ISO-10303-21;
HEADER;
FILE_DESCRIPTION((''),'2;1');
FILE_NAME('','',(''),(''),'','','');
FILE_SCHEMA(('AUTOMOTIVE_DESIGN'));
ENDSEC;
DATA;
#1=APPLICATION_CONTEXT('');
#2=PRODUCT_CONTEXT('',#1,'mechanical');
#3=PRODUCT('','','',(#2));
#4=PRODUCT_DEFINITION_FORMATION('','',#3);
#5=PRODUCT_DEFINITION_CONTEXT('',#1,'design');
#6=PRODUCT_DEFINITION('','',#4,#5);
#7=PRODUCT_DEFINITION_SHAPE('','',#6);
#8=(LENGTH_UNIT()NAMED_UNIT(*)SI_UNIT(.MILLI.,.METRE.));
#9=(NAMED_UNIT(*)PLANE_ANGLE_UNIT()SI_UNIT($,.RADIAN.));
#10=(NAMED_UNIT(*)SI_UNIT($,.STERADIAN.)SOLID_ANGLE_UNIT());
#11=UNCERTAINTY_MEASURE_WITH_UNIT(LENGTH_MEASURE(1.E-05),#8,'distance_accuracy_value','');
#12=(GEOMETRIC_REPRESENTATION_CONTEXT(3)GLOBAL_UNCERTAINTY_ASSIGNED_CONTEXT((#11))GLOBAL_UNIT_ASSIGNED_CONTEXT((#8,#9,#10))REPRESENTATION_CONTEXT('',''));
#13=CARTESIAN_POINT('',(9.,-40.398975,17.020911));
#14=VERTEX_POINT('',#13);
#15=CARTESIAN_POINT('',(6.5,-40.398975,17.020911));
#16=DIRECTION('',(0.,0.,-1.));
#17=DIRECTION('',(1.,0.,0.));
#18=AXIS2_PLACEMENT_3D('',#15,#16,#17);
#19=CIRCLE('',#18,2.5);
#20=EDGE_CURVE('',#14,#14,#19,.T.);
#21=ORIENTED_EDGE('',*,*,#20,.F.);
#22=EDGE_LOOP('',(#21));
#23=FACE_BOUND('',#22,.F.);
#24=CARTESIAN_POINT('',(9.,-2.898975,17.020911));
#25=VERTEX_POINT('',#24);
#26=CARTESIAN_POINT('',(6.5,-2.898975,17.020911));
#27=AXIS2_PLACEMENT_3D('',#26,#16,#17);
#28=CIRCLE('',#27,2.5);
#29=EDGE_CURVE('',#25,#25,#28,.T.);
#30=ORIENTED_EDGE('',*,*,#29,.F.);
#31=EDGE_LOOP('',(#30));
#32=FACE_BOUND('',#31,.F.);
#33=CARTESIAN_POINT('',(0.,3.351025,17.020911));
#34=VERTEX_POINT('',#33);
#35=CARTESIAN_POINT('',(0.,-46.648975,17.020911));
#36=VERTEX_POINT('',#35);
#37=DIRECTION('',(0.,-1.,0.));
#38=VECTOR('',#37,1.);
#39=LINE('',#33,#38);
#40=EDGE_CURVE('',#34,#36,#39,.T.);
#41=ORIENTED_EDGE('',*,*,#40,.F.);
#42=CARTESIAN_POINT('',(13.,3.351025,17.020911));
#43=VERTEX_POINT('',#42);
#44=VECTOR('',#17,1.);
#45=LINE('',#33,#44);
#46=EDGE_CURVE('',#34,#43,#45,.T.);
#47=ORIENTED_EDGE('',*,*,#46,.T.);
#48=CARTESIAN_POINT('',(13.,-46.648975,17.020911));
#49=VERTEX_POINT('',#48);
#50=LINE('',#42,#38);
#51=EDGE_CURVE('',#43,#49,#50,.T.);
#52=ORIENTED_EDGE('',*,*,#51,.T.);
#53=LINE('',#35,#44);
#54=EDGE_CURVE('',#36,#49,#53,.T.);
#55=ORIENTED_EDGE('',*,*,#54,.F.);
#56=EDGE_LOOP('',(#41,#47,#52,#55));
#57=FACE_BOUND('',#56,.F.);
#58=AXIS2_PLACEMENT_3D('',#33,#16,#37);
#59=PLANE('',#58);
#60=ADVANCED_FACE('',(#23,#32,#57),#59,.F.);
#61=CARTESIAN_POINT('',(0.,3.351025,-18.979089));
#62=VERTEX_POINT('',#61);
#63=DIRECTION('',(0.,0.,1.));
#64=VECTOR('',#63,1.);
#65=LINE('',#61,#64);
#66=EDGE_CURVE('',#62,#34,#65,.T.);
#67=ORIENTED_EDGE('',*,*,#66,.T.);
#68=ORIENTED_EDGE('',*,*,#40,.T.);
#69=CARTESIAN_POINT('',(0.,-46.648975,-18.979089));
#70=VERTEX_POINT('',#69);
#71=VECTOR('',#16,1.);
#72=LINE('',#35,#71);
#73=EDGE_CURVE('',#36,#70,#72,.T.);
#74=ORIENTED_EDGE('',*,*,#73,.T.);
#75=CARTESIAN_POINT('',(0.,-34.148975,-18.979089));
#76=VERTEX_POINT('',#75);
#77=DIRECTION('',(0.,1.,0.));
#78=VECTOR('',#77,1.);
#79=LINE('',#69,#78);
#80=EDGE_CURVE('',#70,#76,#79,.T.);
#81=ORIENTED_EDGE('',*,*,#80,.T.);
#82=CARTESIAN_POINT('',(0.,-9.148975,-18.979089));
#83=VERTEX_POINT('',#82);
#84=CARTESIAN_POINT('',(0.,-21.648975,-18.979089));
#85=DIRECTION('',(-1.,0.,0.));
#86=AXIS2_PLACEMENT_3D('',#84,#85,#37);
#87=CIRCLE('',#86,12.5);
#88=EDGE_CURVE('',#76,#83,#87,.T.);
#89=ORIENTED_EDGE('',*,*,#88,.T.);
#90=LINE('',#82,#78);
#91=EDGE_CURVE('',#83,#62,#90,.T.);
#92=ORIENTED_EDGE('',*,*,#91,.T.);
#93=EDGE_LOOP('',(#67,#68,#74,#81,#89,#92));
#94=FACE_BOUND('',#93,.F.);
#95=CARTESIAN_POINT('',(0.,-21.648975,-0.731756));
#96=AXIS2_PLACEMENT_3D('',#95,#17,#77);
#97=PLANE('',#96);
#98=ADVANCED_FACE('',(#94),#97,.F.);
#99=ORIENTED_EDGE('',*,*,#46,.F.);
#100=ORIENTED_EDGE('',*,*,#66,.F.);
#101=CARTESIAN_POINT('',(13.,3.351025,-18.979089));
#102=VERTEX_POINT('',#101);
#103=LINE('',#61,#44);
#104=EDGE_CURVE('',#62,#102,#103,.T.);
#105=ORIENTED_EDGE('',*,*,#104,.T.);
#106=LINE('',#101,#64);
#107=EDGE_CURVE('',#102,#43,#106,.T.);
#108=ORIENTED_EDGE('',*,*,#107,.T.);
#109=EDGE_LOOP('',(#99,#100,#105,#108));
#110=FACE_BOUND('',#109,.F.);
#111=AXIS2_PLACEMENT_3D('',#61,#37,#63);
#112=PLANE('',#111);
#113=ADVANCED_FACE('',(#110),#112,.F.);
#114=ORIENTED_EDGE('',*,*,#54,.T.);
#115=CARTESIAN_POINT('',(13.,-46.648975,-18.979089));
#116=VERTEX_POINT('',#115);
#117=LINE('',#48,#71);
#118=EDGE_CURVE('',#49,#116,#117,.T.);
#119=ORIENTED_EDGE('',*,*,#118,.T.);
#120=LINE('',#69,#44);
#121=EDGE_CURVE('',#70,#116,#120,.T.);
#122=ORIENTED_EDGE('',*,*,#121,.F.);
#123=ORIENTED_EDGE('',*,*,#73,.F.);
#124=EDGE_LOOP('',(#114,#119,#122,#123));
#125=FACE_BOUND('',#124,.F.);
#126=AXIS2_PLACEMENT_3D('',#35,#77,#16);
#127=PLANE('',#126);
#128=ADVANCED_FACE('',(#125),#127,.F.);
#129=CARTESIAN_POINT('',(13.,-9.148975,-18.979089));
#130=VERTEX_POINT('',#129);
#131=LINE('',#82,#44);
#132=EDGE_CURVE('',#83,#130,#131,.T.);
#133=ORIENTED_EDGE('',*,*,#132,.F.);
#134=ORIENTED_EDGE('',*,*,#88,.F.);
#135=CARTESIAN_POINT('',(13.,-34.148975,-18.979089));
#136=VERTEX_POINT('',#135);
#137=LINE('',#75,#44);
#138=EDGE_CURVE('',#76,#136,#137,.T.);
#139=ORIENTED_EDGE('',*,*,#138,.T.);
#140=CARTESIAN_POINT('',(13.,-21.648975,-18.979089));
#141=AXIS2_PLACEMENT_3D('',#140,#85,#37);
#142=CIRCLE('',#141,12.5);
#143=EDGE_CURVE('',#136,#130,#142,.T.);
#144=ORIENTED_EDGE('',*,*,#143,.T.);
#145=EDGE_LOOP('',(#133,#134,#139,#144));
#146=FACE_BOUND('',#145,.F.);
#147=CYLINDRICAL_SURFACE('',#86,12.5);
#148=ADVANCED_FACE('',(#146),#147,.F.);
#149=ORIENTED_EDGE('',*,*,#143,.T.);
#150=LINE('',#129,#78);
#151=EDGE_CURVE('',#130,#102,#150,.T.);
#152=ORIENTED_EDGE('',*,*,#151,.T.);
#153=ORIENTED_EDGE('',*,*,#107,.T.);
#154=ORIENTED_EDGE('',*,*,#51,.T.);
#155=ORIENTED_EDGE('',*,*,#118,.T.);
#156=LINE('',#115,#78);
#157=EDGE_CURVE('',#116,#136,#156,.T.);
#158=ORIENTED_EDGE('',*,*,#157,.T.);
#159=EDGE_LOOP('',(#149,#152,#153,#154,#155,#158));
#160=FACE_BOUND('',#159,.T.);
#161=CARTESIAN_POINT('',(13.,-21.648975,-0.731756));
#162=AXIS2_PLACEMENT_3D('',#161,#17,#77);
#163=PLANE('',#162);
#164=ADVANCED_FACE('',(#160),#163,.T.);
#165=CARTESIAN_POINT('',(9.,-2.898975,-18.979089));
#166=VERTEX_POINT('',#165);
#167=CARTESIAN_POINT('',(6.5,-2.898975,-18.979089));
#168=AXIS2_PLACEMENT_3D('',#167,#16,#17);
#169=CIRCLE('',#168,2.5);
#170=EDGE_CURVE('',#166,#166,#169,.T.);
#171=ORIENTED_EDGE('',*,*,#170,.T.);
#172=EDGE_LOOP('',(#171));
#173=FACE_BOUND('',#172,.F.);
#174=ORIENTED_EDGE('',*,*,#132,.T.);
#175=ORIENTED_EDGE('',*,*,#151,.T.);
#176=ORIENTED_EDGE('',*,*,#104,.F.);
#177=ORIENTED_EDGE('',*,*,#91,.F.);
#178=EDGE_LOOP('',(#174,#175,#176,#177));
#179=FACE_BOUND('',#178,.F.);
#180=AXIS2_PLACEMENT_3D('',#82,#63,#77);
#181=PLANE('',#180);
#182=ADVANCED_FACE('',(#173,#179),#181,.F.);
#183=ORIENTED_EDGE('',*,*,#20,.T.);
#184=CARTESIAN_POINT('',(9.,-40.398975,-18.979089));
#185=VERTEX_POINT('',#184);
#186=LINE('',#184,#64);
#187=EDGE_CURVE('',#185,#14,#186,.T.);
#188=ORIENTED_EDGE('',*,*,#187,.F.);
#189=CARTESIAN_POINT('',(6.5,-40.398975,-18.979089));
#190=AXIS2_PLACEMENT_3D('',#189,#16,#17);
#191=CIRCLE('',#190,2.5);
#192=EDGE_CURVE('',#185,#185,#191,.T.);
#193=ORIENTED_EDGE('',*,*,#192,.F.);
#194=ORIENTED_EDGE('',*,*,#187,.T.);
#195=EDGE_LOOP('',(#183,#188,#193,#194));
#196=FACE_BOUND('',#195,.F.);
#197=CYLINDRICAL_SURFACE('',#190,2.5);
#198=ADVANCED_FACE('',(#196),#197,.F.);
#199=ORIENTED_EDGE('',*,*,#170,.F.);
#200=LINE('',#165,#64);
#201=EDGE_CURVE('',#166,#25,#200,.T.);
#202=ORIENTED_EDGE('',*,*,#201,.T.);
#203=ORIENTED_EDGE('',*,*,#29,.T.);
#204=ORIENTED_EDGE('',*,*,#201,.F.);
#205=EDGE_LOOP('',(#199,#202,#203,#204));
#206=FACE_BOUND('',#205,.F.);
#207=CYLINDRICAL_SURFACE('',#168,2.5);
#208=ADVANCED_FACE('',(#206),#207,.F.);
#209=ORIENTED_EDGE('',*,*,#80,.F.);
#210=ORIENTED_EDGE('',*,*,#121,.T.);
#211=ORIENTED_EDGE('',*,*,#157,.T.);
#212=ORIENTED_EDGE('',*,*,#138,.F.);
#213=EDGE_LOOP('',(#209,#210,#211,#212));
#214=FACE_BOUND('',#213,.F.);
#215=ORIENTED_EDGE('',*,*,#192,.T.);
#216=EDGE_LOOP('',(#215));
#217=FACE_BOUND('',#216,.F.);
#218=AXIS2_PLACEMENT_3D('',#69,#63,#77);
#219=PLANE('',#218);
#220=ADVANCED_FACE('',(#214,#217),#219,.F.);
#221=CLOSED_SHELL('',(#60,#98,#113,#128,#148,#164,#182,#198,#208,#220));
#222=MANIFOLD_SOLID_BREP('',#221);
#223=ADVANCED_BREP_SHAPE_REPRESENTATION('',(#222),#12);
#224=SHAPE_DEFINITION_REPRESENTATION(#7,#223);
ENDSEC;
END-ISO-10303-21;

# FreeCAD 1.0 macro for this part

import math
import FreeCAD as App
import Part
import Sketcher
Q = App.Units.Quantity

doc = App.newDocument("Part")
body = doc.addObject("PartDesign::Body", "Body")

# Sketch on YZ plane
sketch1 = body.newObject("Sketcher::SketchObject", "Sketch")
sketch1.AttachmentSupport = (doc.getObject("YZ_Plane"), [""])
sketch1.MapMode = "FlatFace"
sketch1.addGeometry([
    Part.LineSegment(App.Vector(3, 17, 0), App.Vector(-47, 17, 0)),  # 0
    Part.LineSegment(App.Vector(-47, 17, 0), App.Vector(-47, -19, 0)),  # 1
    Part.LineSegment(App.Vector(-47, -19, 0), App.Vector(-34, -19, 0)),  # 2
    Part.ArcOfCircle(Part.Circle(App.Vector(-22, -19, 0), App.Vector(0, 0, 1), 12), math.radians(0), math.radians(180)),  # 3
    Part.LineSegment(App.Vector(-9, -19, 0), App.Vector(3, -19, 0)),  # 4
    Part.LineSegment(App.Vector(3, -19, 0), App.Vector(3, 17, 0)),  # 5
], False)
sketch1.addConstraint([
    Sketcher.Constraint("Coincident", 0, 2, 1, 1),
    Sketcher.Constraint("Coincident", 1, 2, 2, 1),
    Sketcher.Constraint("Coincident", 2, 2, 3, 2),
    Sketcher.Constraint("Coincident", 3, 1, 4, 1),
    Sketcher.Constraint("Coincident", 4, 2, 5, 1),
    Sketcher.Constraint("Coincident", 5, 2, 0, 1),
    Sketcher.Constraint("Horizontal", 0),
    Sketcher.Constraint("Vertical", 1),
    Sketcher.Constraint("Horizontal", 2),
    Sketcher.Constraint("Horizontal", 4),
    Sketcher.Constraint("Vertical", 5),
    Sketcher.Constraint("Horizontal", 3, 3, 1, 2),
    Sketcher.Constraint("Horizontal", 2, 2, 3, 1),
    Sketcher.Constraint("Equal", 2, 4),
    Sketcher.Constraint("Radius", 3, Q("12.5 mm")),
    Sketcher.Constraint("DistanceX", 0, 2, 0, 1, Q("50 mm")),
    Sketcher.Constraint("DistanceY", 1, 2, 1, 1, Q("36 mm")),
    Sketcher.Constraint("DistanceY", 3, 3, -1, 1, Q("18.979089 mm")),
    Sketcher.Constraint("DistanceX", 3, 3, -1, 1, Q("21.648975 mm")),
])
pad1 = body.newObject("PartDesign::Pad", "Pad")
pad1.Profile = sketch1
pad1.Length = 13

# Sketch on XY plane
sketch2 = body.newObject("Sketcher::SketchObject", "Sketch001")
sketch2.AttachmentSupport = (doc.getObject("XY_Plane"), [""])
sketch2.MapMode = "FlatFace"
sketch2.AttachmentOffset = App.Placement(App.Vector(0, 0, -18.979089), App.Rotation())
sketch2.addGeometry(Part.Circle(App.Vector(6.5, -40.4, 0), App.Vector(0, 0, 1), 2.5), False)
sketch2.addConstraint([
    Sketcher.Constraint("Diameter", 0, Q("5 mm")),
    Sketcher.Constraint("DistanceX", -1, 1, 0, 3, Q("6.5 mm")),
    Sketcher.Constraint("DistanceY", 0, 3, -1, 1, Q("40.398975 mm")),
])
pocket1 = body.newObject("PartDesign::Pocket", "Pocket")
pocket1.Profile = sketch2
pocket1.Length = 36
pocket1.Reversed = True

# Sketch on XY plane
sketch3 = body.newObject("Sketcher::SketchObject", "Sketch002")
sketch3.AttachmentSupport = (doc.getObject("XY_Plane"), [""])
sketch3.MapMode = "FlatFace"
sketch3.AttachmentOffset = App.Placement(App.Vector(0, 0, -18.979089), App.Rotation())
sketch3.addGeometry(Part.Circle(App.Vector(6.5, -2.9, 0), App.Vector(0, 0, 1), 2.5), False)
sketch3.addConstraint([
    Sketcher.Constraint("Diameter", 0, Q("5 mm")),
    Sketcher.Constraint("DistanceX", -1, 1, 0, 3, Q("6.5 mm")),
    Sketcher.Constraint("DistanceY", 0, 3, -1, 1, Q("2.898975 mm")),
])
pocket2 = body.newObject("PartDesign::Pocket", "Pocket001")
pocket2.Profile = sketch3
pocket2.Length = 36
pocket2.Reversed = True

doc.recompute()
